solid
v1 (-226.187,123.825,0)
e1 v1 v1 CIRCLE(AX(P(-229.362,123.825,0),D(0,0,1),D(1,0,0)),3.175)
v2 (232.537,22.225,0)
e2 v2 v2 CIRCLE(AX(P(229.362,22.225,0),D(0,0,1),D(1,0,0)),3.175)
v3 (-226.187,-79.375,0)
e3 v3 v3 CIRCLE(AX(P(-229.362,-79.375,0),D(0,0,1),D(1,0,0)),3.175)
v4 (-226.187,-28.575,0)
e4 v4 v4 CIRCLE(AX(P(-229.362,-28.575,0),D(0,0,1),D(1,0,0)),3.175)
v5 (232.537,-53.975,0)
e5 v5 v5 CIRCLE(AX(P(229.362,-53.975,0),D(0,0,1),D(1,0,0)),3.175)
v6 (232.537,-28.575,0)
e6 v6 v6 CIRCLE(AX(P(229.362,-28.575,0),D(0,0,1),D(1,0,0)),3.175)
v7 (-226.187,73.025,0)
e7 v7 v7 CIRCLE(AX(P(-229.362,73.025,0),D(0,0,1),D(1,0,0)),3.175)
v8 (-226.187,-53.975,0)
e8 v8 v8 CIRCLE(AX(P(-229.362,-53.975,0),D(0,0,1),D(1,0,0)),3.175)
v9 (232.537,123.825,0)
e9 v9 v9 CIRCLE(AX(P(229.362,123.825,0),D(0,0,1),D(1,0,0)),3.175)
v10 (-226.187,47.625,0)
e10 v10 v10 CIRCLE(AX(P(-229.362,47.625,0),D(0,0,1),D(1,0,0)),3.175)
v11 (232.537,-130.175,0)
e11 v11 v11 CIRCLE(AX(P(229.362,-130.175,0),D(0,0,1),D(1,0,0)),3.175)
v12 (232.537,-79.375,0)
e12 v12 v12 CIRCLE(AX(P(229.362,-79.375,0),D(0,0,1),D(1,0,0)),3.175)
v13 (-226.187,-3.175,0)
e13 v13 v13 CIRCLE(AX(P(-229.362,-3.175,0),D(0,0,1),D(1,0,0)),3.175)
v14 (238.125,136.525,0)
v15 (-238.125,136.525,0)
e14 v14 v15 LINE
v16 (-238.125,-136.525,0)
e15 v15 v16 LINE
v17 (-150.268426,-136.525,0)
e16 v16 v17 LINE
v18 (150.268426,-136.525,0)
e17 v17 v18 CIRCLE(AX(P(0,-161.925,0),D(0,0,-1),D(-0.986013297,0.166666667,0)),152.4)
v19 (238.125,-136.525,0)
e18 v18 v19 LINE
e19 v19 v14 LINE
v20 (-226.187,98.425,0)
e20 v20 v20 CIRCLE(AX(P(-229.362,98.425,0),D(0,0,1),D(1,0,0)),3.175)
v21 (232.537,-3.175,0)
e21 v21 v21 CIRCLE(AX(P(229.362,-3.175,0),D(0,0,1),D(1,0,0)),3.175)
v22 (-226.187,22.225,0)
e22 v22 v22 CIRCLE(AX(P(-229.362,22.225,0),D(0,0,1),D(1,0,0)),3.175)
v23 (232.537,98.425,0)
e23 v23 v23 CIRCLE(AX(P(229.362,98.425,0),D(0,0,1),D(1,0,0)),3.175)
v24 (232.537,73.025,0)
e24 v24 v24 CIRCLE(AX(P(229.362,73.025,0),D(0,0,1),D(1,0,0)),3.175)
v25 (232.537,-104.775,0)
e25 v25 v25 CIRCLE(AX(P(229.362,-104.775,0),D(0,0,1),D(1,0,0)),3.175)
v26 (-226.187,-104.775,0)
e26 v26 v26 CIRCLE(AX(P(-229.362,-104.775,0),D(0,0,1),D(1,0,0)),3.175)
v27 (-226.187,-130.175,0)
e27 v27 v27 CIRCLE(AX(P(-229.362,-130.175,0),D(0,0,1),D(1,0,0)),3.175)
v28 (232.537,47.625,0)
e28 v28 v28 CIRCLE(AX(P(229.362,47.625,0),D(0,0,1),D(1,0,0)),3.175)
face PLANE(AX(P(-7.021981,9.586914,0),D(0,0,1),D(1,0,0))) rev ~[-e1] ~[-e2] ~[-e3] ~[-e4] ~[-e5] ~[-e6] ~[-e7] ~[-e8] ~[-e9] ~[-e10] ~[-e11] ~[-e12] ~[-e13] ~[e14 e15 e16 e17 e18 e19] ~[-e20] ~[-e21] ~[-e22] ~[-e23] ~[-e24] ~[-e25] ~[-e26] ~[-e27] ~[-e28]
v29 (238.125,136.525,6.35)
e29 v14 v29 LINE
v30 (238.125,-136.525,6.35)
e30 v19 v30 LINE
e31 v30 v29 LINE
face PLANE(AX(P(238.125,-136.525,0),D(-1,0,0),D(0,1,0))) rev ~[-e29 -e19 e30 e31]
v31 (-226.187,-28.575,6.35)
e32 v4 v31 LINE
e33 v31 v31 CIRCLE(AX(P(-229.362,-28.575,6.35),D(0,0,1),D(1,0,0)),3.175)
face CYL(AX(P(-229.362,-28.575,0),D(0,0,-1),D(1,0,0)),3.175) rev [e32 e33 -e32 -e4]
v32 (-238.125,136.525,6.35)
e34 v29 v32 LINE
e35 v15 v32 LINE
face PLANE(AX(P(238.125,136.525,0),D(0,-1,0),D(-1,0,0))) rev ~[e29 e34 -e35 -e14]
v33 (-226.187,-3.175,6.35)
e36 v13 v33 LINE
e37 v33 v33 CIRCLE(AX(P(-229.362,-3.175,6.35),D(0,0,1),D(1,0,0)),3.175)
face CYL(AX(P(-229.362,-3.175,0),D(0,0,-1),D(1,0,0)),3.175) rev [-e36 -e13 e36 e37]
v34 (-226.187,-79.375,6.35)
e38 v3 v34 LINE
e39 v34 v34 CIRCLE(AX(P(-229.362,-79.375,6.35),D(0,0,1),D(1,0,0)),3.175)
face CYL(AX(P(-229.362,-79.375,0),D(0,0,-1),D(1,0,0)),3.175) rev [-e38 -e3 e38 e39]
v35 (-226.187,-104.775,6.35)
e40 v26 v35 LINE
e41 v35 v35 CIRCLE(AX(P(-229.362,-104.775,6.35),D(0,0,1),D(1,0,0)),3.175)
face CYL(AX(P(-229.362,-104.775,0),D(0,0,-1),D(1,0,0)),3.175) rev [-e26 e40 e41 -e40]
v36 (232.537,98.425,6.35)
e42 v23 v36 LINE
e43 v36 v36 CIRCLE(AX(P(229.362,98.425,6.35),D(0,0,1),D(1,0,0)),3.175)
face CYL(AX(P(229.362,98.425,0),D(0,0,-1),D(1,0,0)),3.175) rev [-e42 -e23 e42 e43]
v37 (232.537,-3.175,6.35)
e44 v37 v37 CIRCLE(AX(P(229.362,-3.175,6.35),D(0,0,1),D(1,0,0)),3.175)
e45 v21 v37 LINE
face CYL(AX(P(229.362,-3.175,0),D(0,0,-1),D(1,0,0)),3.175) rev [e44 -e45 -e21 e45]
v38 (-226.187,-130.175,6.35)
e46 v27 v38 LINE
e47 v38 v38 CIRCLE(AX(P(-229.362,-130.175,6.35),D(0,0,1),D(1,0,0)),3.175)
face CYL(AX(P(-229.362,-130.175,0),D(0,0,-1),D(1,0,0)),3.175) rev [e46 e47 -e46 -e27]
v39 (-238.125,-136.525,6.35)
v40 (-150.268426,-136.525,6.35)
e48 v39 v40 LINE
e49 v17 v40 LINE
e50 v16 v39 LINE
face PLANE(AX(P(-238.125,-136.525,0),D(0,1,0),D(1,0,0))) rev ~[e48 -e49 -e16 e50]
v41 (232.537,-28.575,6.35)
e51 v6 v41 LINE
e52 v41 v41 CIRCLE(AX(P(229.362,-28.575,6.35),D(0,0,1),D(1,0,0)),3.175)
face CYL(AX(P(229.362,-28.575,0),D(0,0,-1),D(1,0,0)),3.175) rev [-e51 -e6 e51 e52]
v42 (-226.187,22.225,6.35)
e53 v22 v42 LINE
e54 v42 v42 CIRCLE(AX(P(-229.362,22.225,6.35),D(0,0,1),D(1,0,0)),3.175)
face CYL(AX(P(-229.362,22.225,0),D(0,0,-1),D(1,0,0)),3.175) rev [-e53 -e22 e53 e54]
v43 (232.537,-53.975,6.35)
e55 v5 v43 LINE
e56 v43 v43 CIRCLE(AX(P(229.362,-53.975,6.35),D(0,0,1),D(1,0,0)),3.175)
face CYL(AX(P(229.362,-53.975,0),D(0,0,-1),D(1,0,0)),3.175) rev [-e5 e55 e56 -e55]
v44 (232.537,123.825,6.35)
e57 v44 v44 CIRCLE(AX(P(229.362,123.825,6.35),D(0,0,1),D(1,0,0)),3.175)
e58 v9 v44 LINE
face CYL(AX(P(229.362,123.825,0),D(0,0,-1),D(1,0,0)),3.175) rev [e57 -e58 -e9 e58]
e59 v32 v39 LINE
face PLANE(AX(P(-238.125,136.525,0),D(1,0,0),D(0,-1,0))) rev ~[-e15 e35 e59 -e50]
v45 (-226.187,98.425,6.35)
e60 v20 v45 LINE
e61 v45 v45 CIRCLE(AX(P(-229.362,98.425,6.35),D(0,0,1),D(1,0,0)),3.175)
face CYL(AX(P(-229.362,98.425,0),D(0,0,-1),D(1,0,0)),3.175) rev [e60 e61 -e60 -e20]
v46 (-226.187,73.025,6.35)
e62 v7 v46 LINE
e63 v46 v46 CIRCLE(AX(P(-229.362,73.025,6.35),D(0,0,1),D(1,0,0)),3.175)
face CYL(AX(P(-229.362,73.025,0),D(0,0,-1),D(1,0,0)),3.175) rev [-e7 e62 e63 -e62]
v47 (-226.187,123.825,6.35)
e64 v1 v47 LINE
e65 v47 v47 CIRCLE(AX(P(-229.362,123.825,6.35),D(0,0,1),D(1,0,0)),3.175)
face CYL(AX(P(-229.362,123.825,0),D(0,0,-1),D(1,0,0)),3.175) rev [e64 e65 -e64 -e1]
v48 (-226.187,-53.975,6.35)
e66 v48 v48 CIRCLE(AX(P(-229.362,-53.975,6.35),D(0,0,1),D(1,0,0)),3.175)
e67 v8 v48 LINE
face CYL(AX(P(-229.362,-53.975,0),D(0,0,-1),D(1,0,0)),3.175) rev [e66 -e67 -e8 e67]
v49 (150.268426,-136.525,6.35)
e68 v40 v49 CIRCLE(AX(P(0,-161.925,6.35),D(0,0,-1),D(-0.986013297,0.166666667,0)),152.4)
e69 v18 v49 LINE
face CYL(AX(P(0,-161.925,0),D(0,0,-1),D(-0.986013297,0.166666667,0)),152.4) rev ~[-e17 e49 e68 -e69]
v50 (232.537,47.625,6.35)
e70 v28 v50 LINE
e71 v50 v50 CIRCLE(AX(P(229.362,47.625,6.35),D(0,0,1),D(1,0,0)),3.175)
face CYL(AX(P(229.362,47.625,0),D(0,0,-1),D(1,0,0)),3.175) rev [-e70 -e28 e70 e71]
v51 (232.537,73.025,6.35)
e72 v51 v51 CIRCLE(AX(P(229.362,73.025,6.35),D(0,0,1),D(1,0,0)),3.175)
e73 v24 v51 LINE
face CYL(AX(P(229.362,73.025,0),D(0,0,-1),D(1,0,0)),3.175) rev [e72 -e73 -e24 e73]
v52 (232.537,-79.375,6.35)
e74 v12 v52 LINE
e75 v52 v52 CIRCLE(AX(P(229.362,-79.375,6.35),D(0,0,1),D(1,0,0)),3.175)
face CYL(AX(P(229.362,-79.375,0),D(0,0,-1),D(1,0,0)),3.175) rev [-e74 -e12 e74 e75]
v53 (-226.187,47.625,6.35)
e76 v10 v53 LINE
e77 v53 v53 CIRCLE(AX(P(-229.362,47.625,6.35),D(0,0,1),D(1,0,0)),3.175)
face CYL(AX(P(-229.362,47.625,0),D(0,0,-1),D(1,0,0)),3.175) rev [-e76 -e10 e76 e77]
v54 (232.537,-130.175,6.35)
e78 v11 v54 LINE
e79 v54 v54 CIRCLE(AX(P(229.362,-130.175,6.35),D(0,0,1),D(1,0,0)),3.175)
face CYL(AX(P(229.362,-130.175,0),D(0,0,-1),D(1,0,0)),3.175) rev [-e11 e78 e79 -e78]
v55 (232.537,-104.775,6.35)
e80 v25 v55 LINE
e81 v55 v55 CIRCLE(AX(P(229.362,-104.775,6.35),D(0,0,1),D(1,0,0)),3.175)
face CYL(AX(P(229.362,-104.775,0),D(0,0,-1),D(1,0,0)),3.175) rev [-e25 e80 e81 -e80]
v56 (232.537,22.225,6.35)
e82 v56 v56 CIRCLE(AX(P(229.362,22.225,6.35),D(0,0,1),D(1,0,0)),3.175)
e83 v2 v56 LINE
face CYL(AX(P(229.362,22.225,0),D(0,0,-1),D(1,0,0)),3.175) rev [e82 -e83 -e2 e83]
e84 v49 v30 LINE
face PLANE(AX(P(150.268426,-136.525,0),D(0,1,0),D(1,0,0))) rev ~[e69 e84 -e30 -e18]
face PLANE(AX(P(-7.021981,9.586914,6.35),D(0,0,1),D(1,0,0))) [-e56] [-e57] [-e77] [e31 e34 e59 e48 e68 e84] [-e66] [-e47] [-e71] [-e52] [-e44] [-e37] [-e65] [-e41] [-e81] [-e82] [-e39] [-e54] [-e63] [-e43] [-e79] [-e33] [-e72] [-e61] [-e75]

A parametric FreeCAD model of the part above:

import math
import FreeCAD as App
import Part
import Sketcher
Q = App.Units.Quantity

doc = App.newDocument("Part")
body = doc.addObject("PartDesign::Body", "Body")

# Sketch on XY plane
sketch1 = doc.addObject("Sketcher::SketchObject", "Sketch")
body.addObject(sketch1)
sketch1.AttachmentSupport = (doc.XY_Plane, [""])
sketch1.MapMode = "FlatFace"
sketch1.addGeometry([
    Part.LineSegment(App.Vector(-238.1, 136.5, 0), App.Vector(-238.1, -136.5, 0)),  # 0
    Part.LineSegment(App.Vector(-238.1, -136.5, 0), App.Vector(-150.3, -136.5, 0)),  # 1
    Part.ArcOfCircle(Part.Circle(App.Vector(0, -161.9, 0), App.Vector(0, 0, 1), 152.4), math.radians(10), math.radians(170)),  # 2
    Part.LineSegment(App.Vector(150.3, -136.5, 0), App.Vector(238.1, -136.5, 0)),  # 3
    Part.LineSegment(App.Vector(238.1, -136.5, 0), App.Vector(238.1, 136.5, 0)),  # 4
    Part.LineSegment(App.Vector(238.1, 136.5, 0), App.Vector(-238.1, 136.5, 0)),  # 5
    Part.Circle(App.Vector(-229.4, -130.2, 0), App.Vector(0, 0, 1), 3.2),  # 6
    Part.Circle(App.Vector(-229.4, -104.8, 0), App.Vector(0, 0, 1), 3.2),  # 7
    Part.Circle(App.Vector(-229.4, -79.4, 0), App.Vector(0, 0, 1), 3.2),  # 8
    Part.Circle(App.Vector(-229.4, -54, 0), App.Vector(0, 0, 1), 3.2),  # 9
    Part.Circle(App.Vector(-229.4, -28.6, 0), App.Vector(0, 0, 1), 3.2),  # 10
    Part.Circle(App.Vector(229.4, -130.2, 0), App.Vector(0, 0, 1), 3.2),  # 11
    Part.Circle(App.Vector(229.4, -104.8, 0), App.Vector(0, 0, 1), 3.2),  # 12
    Part.Circle(App.Vector(229.4, -79.4, 0), App.Vector(0, 0, 1), 3.2),  # 13
    Part.Circle(App.Vector(229.4, -54, 0), App.Vector(0, 0, 1), 3.2),  # 14
    Part.Circle(App.Vector(229.4, -28.6, 0), App.Vector(0, 0, 1), 3.2),  # 15
    Part.Circle(App.Vector(-229.4, -3.2, 0), App.Vector(0, 0, 1), 3.2),  # 16
    Part.Circle(App.Vector(-229.4, 22.2, 0), App.Vector(0, 0, 1), 3.2),  # 17
    Part.Circle(App.Vector(-229.4, 47.6, 0), App.Vector(0, 0, 1), 3.2),  # 18
    Part.Circle(App.Vector(-229.4, 73, 0), App.Vector(0, 0, 1), 3.2),  # 19
    Part.Circle(App.Vector(-229.4, 98.4, 0), App.Vector(0, 0, 1), 3.2),  # 20
    Part.Circle(App.Vector(-229.4, 123.8, 0), App.Vector(0, 0, 1), 3.2),  # 21
    Part.Circle(App.Vector(229.4, -3.2, 0), App.Vector(0, 0, 1), 3.2),  # 22
    Part.Circle(App.Vector(229.4, 22.2, 0), App.Vector(0, 0, 1), 3.2),  # 23
    Part.Circle(App.Vector(229.4, 47.6, 0), App.Vector(0, 0, 1), 3.2),  # 24
    Part.Circle(App.Vector(229.4, 73, 0), App.Vector(0, 0, 1), 3.2),  # 25
    Part.Circle(App.Vector(229.4, 98.4, 0), App.Vector(0, 0, 1), 3.2),  # 26
    Part.Circle(App.Vector(229.4, 123.8, 0), App.Vector(0, 0, 1), 3.2),  # 27
], False)
sketch1.addConstraint([
    Sketcher.Constraint("Coincident", 0, 2, 1, 1),
    Sketcher.Constraint("Coincident", 1, 2, 2, 2),
    Sketcher.Constraint("Coincident", 2, 1, 3, 1),
    Sketcher.Constraint("Coincident", 3, 2, 4, 1),
    Sketcher.Constraint("Coincident", 4, 2, 5, 1),
    Sketcher.Constraint("Coincident", 5, 2, 0, 1),
    Sketcher.Constraint("Vertical", 0),
    Sketcher.Constraint("Horizontal", 1),
    Sketcher.Constraint("Horizontal", 3),
    Sketcher.Constraint("Vertical", 4),
    Sketcher.Constraint("Horizontal", 5),
    Sketcher.Constraint("Equal", 6, 7),
    Sketcher.Constraint("Equal", 7, 8),
    Sketcher.Constraint("Equal", 8, 9),
    Sketcher.Constraint("Equal", 9, 10),
    Sketcher.Constraint("Equal", 10, 11),
    Sketcher.Constraint("Equal", 11, 12),
    Sketcher.Constraint("Equal", 12, 13),
    Sketcher.Constraint("Equal", 13, 14),
    Sketcher.Constraint("Equal", 14, 15),
    Sketcher.Constraint("Equal", 15, 16),
    Sketcher.Constraint("Equal", 16, 17),
    Sketcher.Constraint("Equal", 17, 18),
    Sketcher.Constraint("Equal", 18, 19),
    Sketcher.Constraint("Equal", 19, 20),
    Sketcher.Constraint("Equal", 20, 21),
    Sketcher.Constraint("Equal", 21, 22),
    Sketcher.Constraint("Equal", 22, 23),
    Sketcher.Constraint("Equal", 23, 24),
    Sketcher.Constraint("Equal", 24, 25),
    Sketcher.Constraint("Equal", 25, 26),
    Sketcher.Constraint("Equal", 26, 27),
    Sketcher.Constraint("Symmetric", 0, 2, 4, 2, -1, 1),
    Sketcher.Constraint("Symmetric", 6, 3, 11, 3, -2),
    Sketcher.Constraint("Symmetric", 7, 3, 12, 3, -2),
    Sketcher.Constraint("Symmetric", 8, 3, 13, 3, -2),
    Sketcher.Constraint("Symmetric", 9, 3, 14, 3, -2),
    Sketcher.Constraint("Symmetric", 10, 3, 15, 3, -2),
    Sketcher.Constraint("Symmetric", 16, 3, 22, 3, -2),
    Sketcher.Constraint("Symmetric", 17, 3, 23, 3, -2),
    Sketcher.Constraint("Symmetric", 18, 3, 24, 3, -2),
    Sketcher.Constraint("Symmetric", 19, 3, 25, 3, -2),
    Sketcher.Constraint("Symmetric", 20, 3, 26, 3, -2),
    Sketcher.Constraint("Symmetric", 21, 3, 27, 3, -2),
    Sketcher.Constraint("Symmetric", 1, 2, 2, 1, -2),
    Sketcher.Constraint("Vertical", 6, 3, 7, 3),
    Sketcher.Constraint("Vertical", 7, 3, 8, 3),
    Sketcher.Constraint("Vertical", 8, 3, 9, 3),
    Sketcher.Constraint("Vertical", 9, 3, 10, 3),
    Sketcher.Constraint("Vertical", 10, 3, 16, 3),
    Sketcher.Constraint("Vertical", 16, 3, 17, 3),
    Sketcher.Constraint("Vertical", 17, 3, 18, 3),
    Sketcher.Constraint("Vertical", 18, 3, 19, 3),
    Sketcher.Constraint("Vertical", 19, 3, 20, 3),
    Sketcher.Constraint("Vertical", 20, 3, 21, 3),
    Sketcher.Constraint("Radius", 2, Q("6 in")),
    Sketcher.Constraint("Diameter", 6, Q("0.25 in")),
    Sketcher.Constraint("DistanceY", 6, 3, 7, 3, Q("1 in")),
    Sketcher.Constraint("DistanceY", 7, 3, 8, 3, Q("1 in")),
    Sketcher.Constraint("DistanceY", 8, 3, 9, 3, Q("1 in")),
    Sketcher.Constraint("DistanceY", 9, 3, 10, 3, Q("1 in")),
    Sketcher.Constraint("DistanceY", 10, 3, 16, 3, Q("1 in")),
    Sketcher.Constraint("DistanceY", 16, 3, 17, 3, Q("1 in")),
    Sketcher.Constraint("DistanceY", 17, 3, 18, 3, Q("1 in")),
    Sketcher.Constraint("DistanceY", 18, 3, 19, 3, Q("1 in")),
    Sketcher.Constraint("DistanceY", 19, 3, 20, 3, Q("1 in")),
    Sketcher.Constraint("DistanceY", 20, 3, 21, 3, Q("1 in")),
    Sketcher.Constraint("DistanceX", 5, 2, 5, 1, Q("18.75 in")),
    Sketcher.Constraint("DistanceY", 0, 2, 0, 1, Q("10.75 in")),
    Sketcher.Constraint("DistanceY", 27, 3, 4, 2, Q("0.5 in")),
    Sketcher.Constraint("DistanceX", 6, 3, -1, 1, Q("9.03 in")),
    Sketcher.Constraint("DistanceY", 2, 3, 6, 3, Q("1.25 in")),
])
pad1 = doc.addObject("PartDesign::Pad", "Pad")
body.addObject(pad1)
pad1.Profile = sketch1
pad1.Length = Q("0.25 in")

doc.recompute()
